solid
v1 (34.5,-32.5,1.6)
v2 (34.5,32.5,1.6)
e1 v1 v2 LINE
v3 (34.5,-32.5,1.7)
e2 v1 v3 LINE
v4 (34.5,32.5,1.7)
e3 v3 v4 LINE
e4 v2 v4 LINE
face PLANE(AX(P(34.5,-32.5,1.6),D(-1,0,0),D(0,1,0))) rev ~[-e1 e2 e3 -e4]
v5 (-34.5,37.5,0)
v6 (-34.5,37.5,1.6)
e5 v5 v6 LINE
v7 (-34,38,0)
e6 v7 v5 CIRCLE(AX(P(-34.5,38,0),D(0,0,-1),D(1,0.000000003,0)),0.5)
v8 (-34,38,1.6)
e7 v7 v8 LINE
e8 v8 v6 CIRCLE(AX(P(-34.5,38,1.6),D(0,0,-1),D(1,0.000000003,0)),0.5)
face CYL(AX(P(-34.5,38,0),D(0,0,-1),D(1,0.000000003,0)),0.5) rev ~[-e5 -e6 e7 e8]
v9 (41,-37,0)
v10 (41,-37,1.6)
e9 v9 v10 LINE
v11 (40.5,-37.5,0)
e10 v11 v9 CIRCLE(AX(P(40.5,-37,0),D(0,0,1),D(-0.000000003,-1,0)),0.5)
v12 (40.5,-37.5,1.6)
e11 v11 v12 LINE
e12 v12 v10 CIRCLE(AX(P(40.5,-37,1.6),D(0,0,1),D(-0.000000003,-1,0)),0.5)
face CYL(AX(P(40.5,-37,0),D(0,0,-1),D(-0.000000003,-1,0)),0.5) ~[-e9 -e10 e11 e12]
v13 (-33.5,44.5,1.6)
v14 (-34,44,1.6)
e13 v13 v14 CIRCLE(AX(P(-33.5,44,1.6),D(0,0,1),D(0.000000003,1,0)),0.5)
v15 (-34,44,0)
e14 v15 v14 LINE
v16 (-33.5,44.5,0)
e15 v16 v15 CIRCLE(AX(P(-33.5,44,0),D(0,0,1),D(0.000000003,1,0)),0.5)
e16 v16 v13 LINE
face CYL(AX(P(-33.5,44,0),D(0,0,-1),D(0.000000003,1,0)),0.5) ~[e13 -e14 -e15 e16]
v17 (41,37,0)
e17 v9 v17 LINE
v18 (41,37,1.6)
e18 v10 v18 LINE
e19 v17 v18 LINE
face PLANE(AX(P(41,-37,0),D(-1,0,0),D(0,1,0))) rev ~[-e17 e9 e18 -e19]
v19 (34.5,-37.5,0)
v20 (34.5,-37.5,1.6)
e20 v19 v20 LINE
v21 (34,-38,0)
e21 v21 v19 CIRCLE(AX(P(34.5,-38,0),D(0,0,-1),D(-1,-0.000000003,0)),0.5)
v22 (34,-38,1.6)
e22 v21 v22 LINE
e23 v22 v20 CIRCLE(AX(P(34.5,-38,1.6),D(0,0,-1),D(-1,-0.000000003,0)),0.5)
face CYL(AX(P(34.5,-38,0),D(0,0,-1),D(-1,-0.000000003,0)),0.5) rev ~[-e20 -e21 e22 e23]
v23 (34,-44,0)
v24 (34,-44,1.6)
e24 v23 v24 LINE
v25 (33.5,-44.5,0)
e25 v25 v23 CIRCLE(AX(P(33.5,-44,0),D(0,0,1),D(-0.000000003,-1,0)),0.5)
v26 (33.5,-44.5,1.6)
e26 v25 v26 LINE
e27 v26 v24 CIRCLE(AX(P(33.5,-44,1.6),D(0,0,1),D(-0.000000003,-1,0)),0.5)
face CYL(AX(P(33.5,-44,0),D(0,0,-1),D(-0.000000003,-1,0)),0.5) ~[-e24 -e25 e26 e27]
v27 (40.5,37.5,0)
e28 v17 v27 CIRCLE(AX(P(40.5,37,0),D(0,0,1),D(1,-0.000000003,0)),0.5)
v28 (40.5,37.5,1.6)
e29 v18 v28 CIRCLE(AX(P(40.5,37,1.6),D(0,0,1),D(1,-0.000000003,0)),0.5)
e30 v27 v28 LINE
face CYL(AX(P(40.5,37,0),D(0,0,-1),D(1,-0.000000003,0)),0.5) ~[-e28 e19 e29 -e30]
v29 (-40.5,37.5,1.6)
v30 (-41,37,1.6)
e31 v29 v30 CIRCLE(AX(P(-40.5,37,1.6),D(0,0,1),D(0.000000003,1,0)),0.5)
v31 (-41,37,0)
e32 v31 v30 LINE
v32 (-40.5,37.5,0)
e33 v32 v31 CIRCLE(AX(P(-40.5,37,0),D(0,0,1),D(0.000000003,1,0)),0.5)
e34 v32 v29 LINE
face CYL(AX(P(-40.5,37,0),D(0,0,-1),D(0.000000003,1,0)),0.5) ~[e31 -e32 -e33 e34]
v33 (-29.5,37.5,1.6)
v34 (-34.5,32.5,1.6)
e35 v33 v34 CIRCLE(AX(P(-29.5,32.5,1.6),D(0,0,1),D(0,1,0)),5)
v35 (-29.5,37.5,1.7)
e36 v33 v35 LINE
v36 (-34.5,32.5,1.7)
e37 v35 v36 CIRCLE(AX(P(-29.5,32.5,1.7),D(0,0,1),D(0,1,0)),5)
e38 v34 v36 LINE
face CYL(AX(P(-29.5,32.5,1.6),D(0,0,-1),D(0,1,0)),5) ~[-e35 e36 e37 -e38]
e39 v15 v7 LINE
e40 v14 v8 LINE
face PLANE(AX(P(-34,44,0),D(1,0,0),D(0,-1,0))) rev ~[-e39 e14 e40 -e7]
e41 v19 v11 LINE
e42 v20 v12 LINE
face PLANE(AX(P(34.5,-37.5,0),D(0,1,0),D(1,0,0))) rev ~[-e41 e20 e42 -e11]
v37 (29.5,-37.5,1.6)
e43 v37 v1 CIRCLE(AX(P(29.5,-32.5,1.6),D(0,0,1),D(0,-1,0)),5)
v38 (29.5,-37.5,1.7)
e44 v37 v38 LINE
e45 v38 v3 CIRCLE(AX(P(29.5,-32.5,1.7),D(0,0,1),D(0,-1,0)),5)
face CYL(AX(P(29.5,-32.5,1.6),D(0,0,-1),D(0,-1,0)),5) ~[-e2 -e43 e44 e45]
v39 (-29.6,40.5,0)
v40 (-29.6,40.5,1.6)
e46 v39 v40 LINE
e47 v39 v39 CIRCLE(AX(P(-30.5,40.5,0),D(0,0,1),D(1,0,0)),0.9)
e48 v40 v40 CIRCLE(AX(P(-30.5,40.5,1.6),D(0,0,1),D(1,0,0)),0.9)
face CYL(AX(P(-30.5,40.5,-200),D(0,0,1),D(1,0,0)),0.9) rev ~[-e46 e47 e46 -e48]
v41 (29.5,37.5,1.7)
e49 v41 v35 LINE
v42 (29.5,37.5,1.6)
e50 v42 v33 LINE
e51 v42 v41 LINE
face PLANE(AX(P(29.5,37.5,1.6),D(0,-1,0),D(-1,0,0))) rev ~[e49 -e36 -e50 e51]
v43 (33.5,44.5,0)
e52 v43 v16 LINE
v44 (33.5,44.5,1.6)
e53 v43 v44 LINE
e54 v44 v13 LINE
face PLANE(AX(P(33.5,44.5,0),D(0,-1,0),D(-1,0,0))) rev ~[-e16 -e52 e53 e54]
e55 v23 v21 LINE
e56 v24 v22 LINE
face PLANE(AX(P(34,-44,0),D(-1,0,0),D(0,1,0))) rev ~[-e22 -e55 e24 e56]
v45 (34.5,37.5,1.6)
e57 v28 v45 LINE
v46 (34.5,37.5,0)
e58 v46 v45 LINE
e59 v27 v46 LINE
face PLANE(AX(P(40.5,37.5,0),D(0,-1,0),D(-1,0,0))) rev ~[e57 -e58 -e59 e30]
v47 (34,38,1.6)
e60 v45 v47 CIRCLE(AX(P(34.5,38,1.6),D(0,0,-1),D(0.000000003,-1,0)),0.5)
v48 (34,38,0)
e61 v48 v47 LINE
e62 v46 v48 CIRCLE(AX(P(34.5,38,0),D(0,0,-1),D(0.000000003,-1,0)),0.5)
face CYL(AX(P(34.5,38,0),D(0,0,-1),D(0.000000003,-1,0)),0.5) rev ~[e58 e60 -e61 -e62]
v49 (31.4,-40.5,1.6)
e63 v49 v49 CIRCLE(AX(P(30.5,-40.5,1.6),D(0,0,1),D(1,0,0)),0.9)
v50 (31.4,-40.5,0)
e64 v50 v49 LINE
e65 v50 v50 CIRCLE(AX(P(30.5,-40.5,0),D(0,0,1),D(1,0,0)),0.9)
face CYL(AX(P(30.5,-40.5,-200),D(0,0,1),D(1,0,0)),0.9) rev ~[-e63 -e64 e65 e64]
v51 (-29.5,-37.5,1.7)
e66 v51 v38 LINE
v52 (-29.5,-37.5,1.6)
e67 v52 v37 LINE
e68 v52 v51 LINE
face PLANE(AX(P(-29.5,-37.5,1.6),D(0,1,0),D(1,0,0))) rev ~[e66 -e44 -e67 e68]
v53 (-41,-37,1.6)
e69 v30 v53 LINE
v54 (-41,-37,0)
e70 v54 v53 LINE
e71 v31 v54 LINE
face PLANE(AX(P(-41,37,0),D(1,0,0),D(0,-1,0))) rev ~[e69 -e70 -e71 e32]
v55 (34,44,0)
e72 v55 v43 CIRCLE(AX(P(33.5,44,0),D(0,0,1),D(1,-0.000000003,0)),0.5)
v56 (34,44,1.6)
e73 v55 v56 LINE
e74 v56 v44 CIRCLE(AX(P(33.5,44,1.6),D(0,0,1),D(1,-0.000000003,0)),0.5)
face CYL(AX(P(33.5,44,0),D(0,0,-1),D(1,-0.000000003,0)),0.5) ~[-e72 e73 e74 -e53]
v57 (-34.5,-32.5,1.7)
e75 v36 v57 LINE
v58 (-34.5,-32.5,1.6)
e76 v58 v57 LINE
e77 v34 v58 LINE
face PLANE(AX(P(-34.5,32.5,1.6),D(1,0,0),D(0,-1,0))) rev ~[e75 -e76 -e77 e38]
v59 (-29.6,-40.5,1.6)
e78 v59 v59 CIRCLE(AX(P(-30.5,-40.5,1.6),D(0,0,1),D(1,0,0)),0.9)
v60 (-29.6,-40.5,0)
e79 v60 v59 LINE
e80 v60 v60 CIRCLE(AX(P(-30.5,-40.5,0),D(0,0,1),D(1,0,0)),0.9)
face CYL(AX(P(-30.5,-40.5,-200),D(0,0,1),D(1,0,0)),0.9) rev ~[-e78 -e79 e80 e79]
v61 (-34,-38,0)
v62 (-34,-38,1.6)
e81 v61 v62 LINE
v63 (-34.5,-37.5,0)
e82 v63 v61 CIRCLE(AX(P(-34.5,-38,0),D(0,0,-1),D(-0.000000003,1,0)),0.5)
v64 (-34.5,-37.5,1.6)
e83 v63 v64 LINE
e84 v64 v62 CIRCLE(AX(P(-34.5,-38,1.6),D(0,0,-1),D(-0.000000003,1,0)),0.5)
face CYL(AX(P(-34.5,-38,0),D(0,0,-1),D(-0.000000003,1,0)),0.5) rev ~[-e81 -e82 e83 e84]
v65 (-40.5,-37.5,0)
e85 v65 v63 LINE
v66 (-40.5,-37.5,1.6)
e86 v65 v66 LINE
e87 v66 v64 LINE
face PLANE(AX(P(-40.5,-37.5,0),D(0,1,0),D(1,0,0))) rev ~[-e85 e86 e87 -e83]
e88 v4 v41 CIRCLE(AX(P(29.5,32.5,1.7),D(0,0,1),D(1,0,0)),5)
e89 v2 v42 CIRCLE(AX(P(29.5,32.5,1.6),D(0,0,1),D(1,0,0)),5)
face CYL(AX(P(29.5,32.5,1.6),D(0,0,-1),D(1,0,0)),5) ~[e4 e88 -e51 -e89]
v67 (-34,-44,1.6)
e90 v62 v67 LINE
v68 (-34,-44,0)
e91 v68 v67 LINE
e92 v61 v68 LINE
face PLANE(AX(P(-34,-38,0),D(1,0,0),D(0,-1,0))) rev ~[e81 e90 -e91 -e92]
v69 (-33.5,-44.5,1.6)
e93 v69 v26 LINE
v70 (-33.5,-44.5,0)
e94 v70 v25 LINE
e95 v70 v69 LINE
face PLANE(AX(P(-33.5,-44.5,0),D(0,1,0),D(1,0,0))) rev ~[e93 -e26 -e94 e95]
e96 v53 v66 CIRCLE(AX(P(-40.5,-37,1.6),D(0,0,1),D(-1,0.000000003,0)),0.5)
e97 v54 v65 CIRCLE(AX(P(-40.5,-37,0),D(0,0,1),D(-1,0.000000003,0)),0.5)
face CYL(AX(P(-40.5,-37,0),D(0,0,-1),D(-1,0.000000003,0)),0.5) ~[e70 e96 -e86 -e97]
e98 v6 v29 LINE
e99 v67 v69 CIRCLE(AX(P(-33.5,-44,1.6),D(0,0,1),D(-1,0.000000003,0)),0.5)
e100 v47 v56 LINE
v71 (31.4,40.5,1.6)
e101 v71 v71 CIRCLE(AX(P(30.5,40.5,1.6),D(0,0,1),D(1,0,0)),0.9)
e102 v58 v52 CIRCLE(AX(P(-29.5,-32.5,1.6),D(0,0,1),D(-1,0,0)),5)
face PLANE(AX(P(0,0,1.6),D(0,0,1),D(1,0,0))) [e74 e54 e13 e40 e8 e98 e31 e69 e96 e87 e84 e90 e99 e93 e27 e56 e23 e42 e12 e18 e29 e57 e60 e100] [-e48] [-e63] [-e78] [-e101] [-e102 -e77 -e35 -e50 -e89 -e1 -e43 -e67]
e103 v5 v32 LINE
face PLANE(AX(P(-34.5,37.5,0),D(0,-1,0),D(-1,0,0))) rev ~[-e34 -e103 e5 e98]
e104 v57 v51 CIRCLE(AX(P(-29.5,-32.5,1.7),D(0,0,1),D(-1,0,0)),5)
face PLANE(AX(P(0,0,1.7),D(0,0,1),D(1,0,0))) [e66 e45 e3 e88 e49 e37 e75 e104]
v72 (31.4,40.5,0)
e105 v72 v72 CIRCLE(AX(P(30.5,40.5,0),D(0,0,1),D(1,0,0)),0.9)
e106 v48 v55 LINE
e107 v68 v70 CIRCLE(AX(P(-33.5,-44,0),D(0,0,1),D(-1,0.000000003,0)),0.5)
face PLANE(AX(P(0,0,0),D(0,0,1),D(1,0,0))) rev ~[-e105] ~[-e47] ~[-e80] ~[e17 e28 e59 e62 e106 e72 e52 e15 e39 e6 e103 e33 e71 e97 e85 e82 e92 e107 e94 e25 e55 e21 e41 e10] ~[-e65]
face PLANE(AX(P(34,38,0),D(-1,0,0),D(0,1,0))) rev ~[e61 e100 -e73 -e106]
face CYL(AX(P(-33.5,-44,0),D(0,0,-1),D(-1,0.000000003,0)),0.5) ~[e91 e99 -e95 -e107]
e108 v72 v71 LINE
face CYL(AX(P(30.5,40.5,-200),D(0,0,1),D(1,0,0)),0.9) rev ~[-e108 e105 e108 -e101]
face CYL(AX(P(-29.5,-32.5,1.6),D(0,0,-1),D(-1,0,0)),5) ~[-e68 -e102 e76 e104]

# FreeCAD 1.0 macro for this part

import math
import FreeCAD as App
import Part
import Sketcher
from FreeCAD import Vector

doc = App.newDocument("Part")
params = doc.addObject("Spreadsheet::Sheet", "Params")
for row, (alias, value) in enumerate([
    ("sketch1_radius", "0.5 mm"),
    ("sketch1_width", "6 mm"),
    ("sketch1_width2", "67 mm"),
    ("sketch1_height", "74 mm"),
    ("pad1_length", "1.6 mm"),
    ("sketch2_radius", "5 mm"),
    ("sketch2_width", "59 mm"),
    ("sketch2_height", "65 mm"),
    ("pad2_length", "0.1 mm"),
    ("sketch3_diameter", "1.8 mm"),
    ("hole_diameter", "1.8 mm"),
    ("hole_depth", "200 mm"),
], start=1):
    params.set(f"A{row}", alias)
    params.set(f"B{row}", "=" + value)
    params.setAlias(f"B{row}", alias)

body = doc.addObject("PartDesign::Body", "Body")

sketch1 = doc.addObject("Sketcher::SketchObject", "Sketch")
body.addObject(sketch1)
sketch1.AttachmentSupport = (doc.XY_Plane, [""])
sketch1.MapMode = "FlatFace"
sketch1.addGeometry([
    Part.LineSegment(Vector(-34, 44, 0), Vector(-34, 38, 0)),
    Part.ArcOfCircle(Part.Circle(Vector(-34.5, 38, 0), Vector(0, 0, 1), 0.5), math.radians(-90), math.radians(0)),
    Part.LineSegment(Vector(-34.5, 37.5, 0), Vector(-40.5, 37.5, 0)),
    Part.ArcOfCircle(Part.Circle(Vector(-40.5, 37, 0), Vector(0, 0, 1), 0.5), math.radians(90), math.radians(180)),
    Part.LineSegment(Vector(-41, 37, 0), Vector(-41, -37, 0)),
    Part.ArcOfCircle(Part.Circle(Vector(-40.5, -37, 0), Vector(0, 0, 1), 0.5), math.radians(180), math.radians(270)),
    Part.LineSegment(Vector(-40.5, -37.5, 0), Vector(-34.5, -37.5, 0)),
    Part.ArcOfCircle(Part.Circle(Vector(-34.5, -38, 0), Vector(0, 0, 1), 0.5), math.radians(0), math.radians(90)),
    Part.LineSegment(Vector(-34, -38, 0), Vector(-34, -44, 0)),
    Part.ArcOfCircle(Part.Circle(Vector(-33.5, -44, 0), Vector(0, 0, 1), 0.5), math.radians(180), math.radians(270)),
    Part.LineSegment(Vector(-33.5, -44.5, 0), Vector(33.5, -44.5, 0)),
    Part.ArcOfCircle(Part.Circle(Vector(33.5, -44, 0), Vector(0, 0, 1), 0.5), math.radians(-90), math.radians(0)),
    Part.LineSegment(Vector(34, -44, 0), Vector(34, -38, 0)),
    Part.ArcOfCircle(Part.Circle(Vector(34.5, -38, 0), Vector(0, 0, 1), 0.5), math.radians(90), math.radians(180)),
    Part.LineSegment(Vector(34.5, -37.5, 0), Vector(40.5, -37.5, 0)),
    Part.ArcOfCircle(Part.Circle(Vector(40.5, -37, 0), Vector(0, 0, 1), 0.5), math.radians(-90), math.radians(0)),
    Part.LineSegment(Vector(41, -37, 0), Vector(41, 37, 0)),
    Part.ArcOfCircle(Part.Circle(Vector(40.5, 37, 0), Vector(0, 0, 1), 0.5), math.radians(0), math.radians(90)),
    Part.LineSegment(Vector(40.5, 37.5, 0), Vector(34.5, 37.5, 0)),
    Part.ArcOfCircle(Part.Circle(Vector(34.5, 38, 0), Vector(0, 0, 1), 0.5), math.radians(180), math.radians(270)),
    Part.LineSegment(Vector(34, 38, 0), Vector(34, 44, 0)),
    Part.ArcOfCircle(Part.Circle(Vector(33.5, 44, 0), Vector(0, 0, 1), 0.5), math.radians(0), math.radians(90)),
    Part.LineSegment(Vector(33.5, 44.5, 0), Vector(-33.5, 44.5, 0)),
    Part.ArcOfCircle(Part.Circle(Vector(-33.5, 44, 0), Vector(0, 0, 1), 0.5), math.radians(90), math.radians(180)),
], False)
sketch1.addConstraint([
    Sketcher.Constraint("Tangent", 0, 2, 1, 2),
    Sketcher.Constraint("Tangent", 1, 1, 2, 1),
    Sketcher.Constraint("Tangent", 2, 2, 3, 1),
    Sketcher.Constraint("Tangent", 3, 2, 4, 1),
    Sketcher.Constraint("Tangent", 4, 2, 5, 1),
    Sketcher.Constraint("Tangent", 5, 2, 6, 1),
    Sketcher.Constraint("Tangent", 6, 2, 7, 2),
    Sketcher.Constraint("Tangent", 7, 1, 8, 1),
    Sketcher.Constraint("Tangent", 8, 2, 9, 1),
    Sketcher.Constraint("Tangent", 9, 2, 10, 1),
    Sketcher.Constraint("Tangent", 10, 2, 11, 1),
    Sketcher.Constraint("Tangent", 11, 2, 12, 1),
    Sketcher.Constraint("Tangent", 12, 2, 13, 2),
    Sketcher.Constraint("Tangent", 13, 1, 14, 1),
    Sketcher.Constraint("Tangent", 14, 2, 15, 1),
    Sketcher.Constraint("Tangent", 15, 2, 16, 1),
    Sketcher.Constraint("Tangent", 16, 2, 17, 1),
    Sketcher.Constraint("Tangent", 17, 2, 18, 1),
    Sketcher.Constraint("Tangent", 18, 2, 19, 2),
    Sketcher.Constraint("Tangent", 19, 1, 20, 1),
    Sketcher.Constraint("Tangent", 20, 2, 21, 1),
    Sketcher.Constraint("Tangent", 21, 2, 22, 1),
    Sketcher.Constraint("Tangent", 22, 2, 23, 1),
    Sketcher.Constraint("Tangent", 23, 2, 0, 1),
    Sketcher.Constraint("Vertical", 0),
    Sketcher.Constraint("Horizontal", 2),
    Sketcher.Constraint("Vertical", 4),
    Sketcher.Constraint("Horizontal", 6),
    Sketcher.Constraint("Vertical", 8),
    Sketcher.Constraint("Horizontal", 10),
    Sketcher.Constraint("Vertical", 12),
    Sketcher.Constraint("Horizontal", 14),
    Sketcher.Constraint("Vertical", 16),
    Sketcher.Constraint("Horizontal", 18),
    Sketcher.Constraint("Vertical", 20),
    Sketcher.Constraint("Horizontal", 22),
    Sketcher.Constraint("Equal", 1, 3),
    Sketcher.Constraint("Equal", 3, 5),
    Sketcher.Constraint("Equal", 5, 7),
    Sketcher.Constraint("Equal", 7, 9),
    Sketcher.Constraint("Equal", 9, 11),
    Sketcher.Constraint("Equal", 11, 13),
    Sketcher.Constraint("Equal", 13, 15),
    Sketcher.Constraint("Equal", 15, 17),
    Sketcher.Constraint("Equal", 17, 19),
    Sketcher.Constraint("Equal", 19, 21),
    Sketcher.Constraint("Equal", 21, 23),
    Sketcher.Constraint("Symmetric", 1, 3, 13, 3, -1, 1),
    Sketcher.Constraint("Symmetric", 5, 3, 17, 3, -1, 1),
    Sketcher.Constraint("Symmetric", 9, 3, 21, 3, -1, 1),
    Sketcher.Constraint("Symmetric", 7, 3, 13, 3, -2),
    Sketcher.Constraint("Equal", 18, 0),
    Sketcher.Constraint("Radius", 1, 0.5),
    Sketcher.Constraint("DistanceX", 2, 2, 2, 1, 6.0),
    Sketcher.Constraint("DistanceX", 10, 1, 10, 2, 67.0),
    Sketcher.Constraint("DistanceY", 4, 2, 4, 1, 74.0),
])
sketch1.setExpression("Constraints[52]", "Params.sketch1_radius")
sketch1.setExpression("Constraints[53]", "Params.sketch1_width")
sketch1.setExpression("Constraints[54]", "Params.sketch1_width2")
sketch1.setExpression("Constraints[55]", "Params.sketch1_height")
pad1 = doc.addObject("PartDesign::Pad", "Pad")
body.addObject(pad1)
pad1.Profile = sketch1
pad1.setExpression("Length", "Params.pad1_length")

sketch2 = doc.addObject("Sketcher::SketchObject", "Sketch001")
body.addObject(sketch2)
sketch2.AttachmentSupport = (doc.XY_Plane, [""])
sketch2.MapMode = "FlatFace"
sketch2.AttachmentOffset = App.Placement(Vector(0, 0, 1.6), App.Rotation())
sketch2.addGeometry([
    Part.LineSegment(Vector(-30, -38, 0), Vector(30, -38, 0)),
    Part.ArcOfCircle(Part.Circle(Vector(30, -32, 0), Vector(0, 0, 1), 5), math.radians(-90), math.radians(0)),
    Part.LineSegment(Vector(34, -32, 0), Vector(34, 32, 0)),
    Part.ArcOfCircle(Part.Circle(Vector(30, 32, 0), Vector(0, 0, 1), 5), math.radians(0), math.radians(90)),
    Part.LineSegment(Vector(30, 38, 0), Vector(-30, 38, 0)),
    Part.ArcOfCircle(Part.Circle(Vector(-30, 32, 0), Vector(0, 0, 1), 5), math.radians(90), math.radians(180)),
    Part.LineSegment(Vector(-34, 32, 0), Vector(-34, -32, 0)),
    Part.ArcOfCircle(Part.Circle(Vector(-30, -32, 0), Vector(0, 0, 1), 5), math.radians(180), math.radians(270)),
], False)
sketch2.addConstraint([
    Sketcher.Constraint("Tangent", 0, 2, 1, 1),
    Sketcher.Constraint("Tangent", 1, 2, 2, 1),
    Sketcher.Constraint("Tangent", 2, 2, 3, 1),
    Sketcher.Constraint("Tangent", 3, 2, 4, 1),
    Sketcher.Constraint("Tangent", 4, 2, 5, 1),
    Sketcher.Constraint("Tangent", 5, 2, 6, 1),
    Sketcher.Constraint("Tangent", 6, 2, 7, 1),
    Sketcher.Constraint("Tangent", 7, 2, 0, 1),
    Sketcher.Constraint("Horizontal", 0),
    Sketcher.Constraint("Vertical", 2),
    Sketcher.Constraint("Horizontal", 4),
    Sketcher.Constraint("Vertical", 6),
    Sketcher.Constraint("Equal", 1, 3),
    Sketcher.Constraint("Equal", 3, 5),
    Sketcher.Constraint("Equal", 5, 7),
    Sketcher.Constraint("Symmetric", 1, 3, 5, 3, -1, 1),
    Sketcher.Constraint("Radius", 1, 5.0),
    Sketcher.Constraint("DistanceX", 0, 1, 0, 2, 59.0),
    Sketcher.Constraint("DistanceY", 2, 1, 2, 2, 65.0),
])
sketch2.setExpression("Constraints[16]", "Params.sketch2_radius")
sketch2.setExpression("Constraints[17]", "Params.sketch2_width")
sketch2.setExpression("Constraints[18]", "Params.sketch2_height")
pad2 = doc.addObject("PartDesign::Pad", "Pad001")
body.addObject(pad2)
pad2.Profile = sketch2
pad2.setExpression("Length", "Params.pad2_length")

sketch3 = doc.addObject("Sketcher::SketchObject", "Sketch002")
body.addObject(sketch3)
sketch3.AttachmentSupport = (doc.XY_Plane, [""])
sketch3.MapMode = "FlatFace"
sketch3.addGeometry([
    Part.Circle(Vector(30.5, 40.5, 0), Vector(0, 0, 1), 0.9),
    Part.Circle(Vector(-30.5, 40.5, 0), Vector(0, 0, 1), 0.9),
    Part.Circle(Vector(30.5, -40.5, 0), Vector(0, 0, 1), 0.9),
    Part.Circle(Vector(-30.5, -40.5, 0), Vector(0, 0, 1), 0.9),
], False)
sketch3.addConstraint([
    Sketcher.Constraint("Equal", 0, 1),
    Sketcher.Constraint("Equal", 1, 2),
    Sketcher.Constraint("Equal", 2, 3),
    Sketcher.Constraint("Symmetric", 1, 3, 2, 3, -1, 1),
    Sketcher.Constraint("Symmetric", 0, 3, 3, 3, -1, 1),
    Sketcher.Constraint("Symmetric", 0, 3, 1, 3, -2),
    Sketcher.Constraint("Diameter", 0, 1.8),
    Sketcher.Constraint("DistanceX", 1, 3, 0, 3, 61.0),
    Sketcher.Constraint("DistanceY", 2, 3, 0, 3, 81.0),
])
sketch3.setExpression("Constraints[6]", "Params.sketch3_diameter")
doc.recompute()
hole = doc.addObject("PartDesign::Hole", "Hole")
body.addObject(hole)
hole.Profile = sketch3
hole.ThreadType = "None"
hole.setExpression("Diameter", "Params.hole_diameter")
hole.DepthType = "Dimension"
hole.setExpression("Depth", "Params.hole_depth")
hole.DrillPoint = "Angled"
hole.DrillPointAngle = 118
hole.Reversed = True

doc.recompute()
